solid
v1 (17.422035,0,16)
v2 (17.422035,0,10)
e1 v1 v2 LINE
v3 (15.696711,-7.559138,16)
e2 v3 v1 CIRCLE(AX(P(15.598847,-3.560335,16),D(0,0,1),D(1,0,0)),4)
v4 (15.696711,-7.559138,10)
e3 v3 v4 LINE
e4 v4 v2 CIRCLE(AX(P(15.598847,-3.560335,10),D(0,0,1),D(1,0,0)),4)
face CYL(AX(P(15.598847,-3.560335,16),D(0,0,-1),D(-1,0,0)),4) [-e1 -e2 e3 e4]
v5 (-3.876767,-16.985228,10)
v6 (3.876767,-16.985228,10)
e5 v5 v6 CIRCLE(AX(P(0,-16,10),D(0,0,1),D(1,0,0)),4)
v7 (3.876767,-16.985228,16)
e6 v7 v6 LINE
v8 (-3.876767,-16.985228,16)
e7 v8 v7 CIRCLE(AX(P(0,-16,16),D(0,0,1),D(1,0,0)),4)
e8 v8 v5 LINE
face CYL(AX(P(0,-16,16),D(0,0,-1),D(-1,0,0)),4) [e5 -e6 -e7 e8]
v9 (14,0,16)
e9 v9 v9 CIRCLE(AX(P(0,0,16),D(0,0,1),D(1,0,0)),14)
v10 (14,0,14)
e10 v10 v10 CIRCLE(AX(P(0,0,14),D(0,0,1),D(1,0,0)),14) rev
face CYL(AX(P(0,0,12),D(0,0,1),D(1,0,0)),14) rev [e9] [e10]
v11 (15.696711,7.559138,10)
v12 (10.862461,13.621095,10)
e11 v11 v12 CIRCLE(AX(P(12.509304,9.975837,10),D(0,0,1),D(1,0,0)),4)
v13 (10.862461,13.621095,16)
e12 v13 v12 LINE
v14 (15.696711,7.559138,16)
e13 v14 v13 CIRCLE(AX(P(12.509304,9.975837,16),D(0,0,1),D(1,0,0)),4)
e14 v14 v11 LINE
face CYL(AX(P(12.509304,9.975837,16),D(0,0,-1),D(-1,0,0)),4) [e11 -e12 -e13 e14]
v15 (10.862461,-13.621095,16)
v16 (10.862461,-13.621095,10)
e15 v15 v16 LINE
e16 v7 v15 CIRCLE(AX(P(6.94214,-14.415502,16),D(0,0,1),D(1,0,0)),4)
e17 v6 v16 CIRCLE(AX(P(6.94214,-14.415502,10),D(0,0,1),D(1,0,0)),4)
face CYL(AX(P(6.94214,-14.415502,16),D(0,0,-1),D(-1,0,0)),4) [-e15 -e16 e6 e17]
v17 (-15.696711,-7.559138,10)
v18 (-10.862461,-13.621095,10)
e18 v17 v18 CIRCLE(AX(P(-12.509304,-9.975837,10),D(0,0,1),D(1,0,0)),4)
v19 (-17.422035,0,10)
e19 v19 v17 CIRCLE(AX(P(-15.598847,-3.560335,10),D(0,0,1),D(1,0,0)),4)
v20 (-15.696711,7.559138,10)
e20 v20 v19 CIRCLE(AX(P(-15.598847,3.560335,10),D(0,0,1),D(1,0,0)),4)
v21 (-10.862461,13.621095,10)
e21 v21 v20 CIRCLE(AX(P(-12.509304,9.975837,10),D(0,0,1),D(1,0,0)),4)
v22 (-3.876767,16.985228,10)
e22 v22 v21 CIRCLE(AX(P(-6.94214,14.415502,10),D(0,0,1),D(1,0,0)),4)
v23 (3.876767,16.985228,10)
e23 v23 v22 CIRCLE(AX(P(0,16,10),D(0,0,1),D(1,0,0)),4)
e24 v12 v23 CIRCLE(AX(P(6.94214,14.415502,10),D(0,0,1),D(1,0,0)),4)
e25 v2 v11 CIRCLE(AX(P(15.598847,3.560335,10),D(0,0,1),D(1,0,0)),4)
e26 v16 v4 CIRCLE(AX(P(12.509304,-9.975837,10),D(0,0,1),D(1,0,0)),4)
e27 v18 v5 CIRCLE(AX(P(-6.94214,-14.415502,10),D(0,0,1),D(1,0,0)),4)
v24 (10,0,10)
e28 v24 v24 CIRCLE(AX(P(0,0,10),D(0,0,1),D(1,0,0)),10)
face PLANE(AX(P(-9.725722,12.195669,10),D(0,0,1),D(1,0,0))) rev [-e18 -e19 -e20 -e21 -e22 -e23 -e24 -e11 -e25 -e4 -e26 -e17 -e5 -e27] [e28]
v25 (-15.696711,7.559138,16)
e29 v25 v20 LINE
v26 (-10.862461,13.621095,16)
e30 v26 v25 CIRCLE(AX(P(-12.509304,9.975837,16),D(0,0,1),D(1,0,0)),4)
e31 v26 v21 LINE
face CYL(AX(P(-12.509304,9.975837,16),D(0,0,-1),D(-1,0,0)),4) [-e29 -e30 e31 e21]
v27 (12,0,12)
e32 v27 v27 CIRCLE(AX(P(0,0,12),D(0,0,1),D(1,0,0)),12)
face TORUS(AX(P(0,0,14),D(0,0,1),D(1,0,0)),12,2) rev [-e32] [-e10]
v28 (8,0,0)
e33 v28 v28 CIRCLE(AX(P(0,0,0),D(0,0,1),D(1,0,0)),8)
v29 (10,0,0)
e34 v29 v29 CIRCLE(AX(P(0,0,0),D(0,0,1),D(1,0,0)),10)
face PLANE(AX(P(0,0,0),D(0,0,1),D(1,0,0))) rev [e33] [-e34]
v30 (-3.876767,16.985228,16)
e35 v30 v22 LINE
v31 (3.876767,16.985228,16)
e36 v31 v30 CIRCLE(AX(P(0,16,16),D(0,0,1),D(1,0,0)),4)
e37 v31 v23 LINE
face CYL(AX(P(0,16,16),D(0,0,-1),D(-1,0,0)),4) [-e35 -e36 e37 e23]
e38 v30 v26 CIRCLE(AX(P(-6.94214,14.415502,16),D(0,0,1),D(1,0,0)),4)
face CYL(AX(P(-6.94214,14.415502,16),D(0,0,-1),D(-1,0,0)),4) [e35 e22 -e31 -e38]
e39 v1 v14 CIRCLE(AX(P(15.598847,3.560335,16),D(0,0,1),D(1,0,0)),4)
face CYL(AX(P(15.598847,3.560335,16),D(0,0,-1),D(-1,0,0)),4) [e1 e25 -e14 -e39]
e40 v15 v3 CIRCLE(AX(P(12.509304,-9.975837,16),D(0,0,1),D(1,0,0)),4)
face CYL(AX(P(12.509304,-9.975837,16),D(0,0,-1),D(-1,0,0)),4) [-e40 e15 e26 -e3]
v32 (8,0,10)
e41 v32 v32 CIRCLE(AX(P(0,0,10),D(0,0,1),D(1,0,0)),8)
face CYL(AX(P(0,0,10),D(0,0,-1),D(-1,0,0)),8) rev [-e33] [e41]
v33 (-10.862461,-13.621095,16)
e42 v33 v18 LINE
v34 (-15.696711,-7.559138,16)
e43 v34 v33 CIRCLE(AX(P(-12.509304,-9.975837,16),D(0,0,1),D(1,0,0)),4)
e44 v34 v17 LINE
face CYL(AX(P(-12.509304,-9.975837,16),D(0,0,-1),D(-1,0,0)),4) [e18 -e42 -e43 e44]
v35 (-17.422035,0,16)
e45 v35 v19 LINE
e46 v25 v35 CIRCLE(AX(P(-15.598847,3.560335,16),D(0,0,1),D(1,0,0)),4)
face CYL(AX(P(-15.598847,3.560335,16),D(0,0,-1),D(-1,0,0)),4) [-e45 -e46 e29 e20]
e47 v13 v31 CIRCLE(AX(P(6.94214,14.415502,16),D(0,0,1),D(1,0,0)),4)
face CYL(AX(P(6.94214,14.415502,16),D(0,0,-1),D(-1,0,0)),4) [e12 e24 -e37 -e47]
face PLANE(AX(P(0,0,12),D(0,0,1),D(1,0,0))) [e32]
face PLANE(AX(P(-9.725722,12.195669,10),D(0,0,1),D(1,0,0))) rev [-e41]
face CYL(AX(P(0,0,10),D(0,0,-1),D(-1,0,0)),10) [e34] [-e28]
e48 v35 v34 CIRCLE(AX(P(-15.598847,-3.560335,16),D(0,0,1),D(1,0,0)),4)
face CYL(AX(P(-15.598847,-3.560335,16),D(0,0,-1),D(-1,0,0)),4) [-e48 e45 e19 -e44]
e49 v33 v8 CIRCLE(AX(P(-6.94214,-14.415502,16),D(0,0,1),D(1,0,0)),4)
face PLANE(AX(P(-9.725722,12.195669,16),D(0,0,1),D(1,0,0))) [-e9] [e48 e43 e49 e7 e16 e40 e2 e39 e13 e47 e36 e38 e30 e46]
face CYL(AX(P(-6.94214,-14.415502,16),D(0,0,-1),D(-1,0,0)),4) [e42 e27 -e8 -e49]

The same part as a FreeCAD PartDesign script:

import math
import FreeCAD as App
import Part
import Sketcher

V = App.Vector
Q = App.Units.Quantity


def edges_at(feature, points):
    """Names of the edges that pass closest to the given points."""
    edges = feature.Shape.Edges
    near = lambda p: min(range(len(edges)), key=lambda i: edges[i].distToShape(Part.Vertex(*p))[0])
    return sorted({f"Edge{near(p) + 1}" for p in points})

doc = App.newDocument("Part")
params = doc.addObject("Spreadsheet::Sheet", "Params")
for row, (alias, value) in enumerate([
    ("sketch1_diameter", "20 mm"),
    ("sketch1_diameter2", "16 mm"),
    ("pad1_length", "10 mm"),
    ("sketch2_radius", "4 mm"),
    ("pad2_length", "6 mm"),
    ("sketch3_diameter", "28 mm"),
    ("pocket1_length", "4 mm"),
    ("fillet_radius", "2 mm"),
], start=1):
    params.set(f"A{row}", alias)
    params.set(f"B{row}", "=" + value)
    params.setAlias(f"B{row}", alias)

body = doc.addObject("PartDesign::Body", "Body")

sketch1 = doc.addObject("Sketcher::SketchObject", "Sketch")
body.addObject(sketch1)
sketch1.AttachmentSupport = (doc.XY_Plane, [""])
sketch1.MapMode = "FlatFace"
sketch1.addGeometry([
    Part.Circle(V(0, 0, 0), V(0, 0, 1), 10),
    Part.Circle(V(0, 0, 0), V(0, 0, 1), 8),
], False)
sketch1.addConstraint([
    Sketcher.Constraint("Coincident", 0, 3, -1, 1),
    Sketcher.Constraint("Coincident", 1, 3, -1, 1),
    Sketcher.Constraint("Diameter", 0, Q("20 mm")),
    Sketcher.Constraint("Diameter", 1, Q("16 mm")),
])
sketch1.setExpression("Constraints[2]", "Params.sketch1_diameter")
sketch1.setExpression("Constraints[3]", "Params.sketch1_diameter2")
pad1 = doc.addObject("PartDesign::Pad", "Pad")
body.addObject(pad1)
pad1.Profile = sketch1
pad1.setExpression("Length", "Params.pad1_length")

sketch2 = doc.addObject("Sketcher::SketchObject", "Sketch001")
body.addObject(sketch2)
sketch2.AttachmentSupport = (doc.XY_Plane, [""])
sketch2.MapMode = "FlatFace"
sketch2.AttachmentOffset = App.Placement(V(0, 0, 10), App.Rotation())
sketch2.addGeometry([
    Part.ArcOfCircle(Part.Circle(V(0, 16, 0), V(0, 0, 1), 4), math.radians(14.259086), math.radians(165.740914)),
    Part.ArcOfCircle(Part.Circle(V(-6.94214, 14.415502, 0), V(0, 0, 1), 4), math.radians(39.973372), math.radians(191.4552)),
    Part.ArcOfCircle(Part.Circle(V(-12.509304, 9.975837, 0), V(0, 0, 1), 4), math.radians(65.687658), math.radians(217.169485)),
    Part.ArcOfCircle(Part.Circle(V(-15.598847, 3.560335, 0), V(0, 0, 1), 4), math.radians(91.401943), math.radians(242.883771)),
    Part.ArcOfCircle(Part.Circle(V(-15.598847, -3.560335, 0), V(0, 0, 1), 4), math.radians(117.116229), math.radians(268.598057)),
    Part.ArcOfCircle(Part.Circle(V(-12.509304, -9.975837, 0), V(0, 0, 1), 4), math.radians(142.830515), math.radians(294.312342)),
    Part.ArcOfCircle(Part.Circle(V(-6.94214, -14.415502, 0), V(0, 0, 1), 4), math.radians(168.5448), math.radians(320.026628)),
    Part.ArcOfCircle(Part.Circle(V(0, -16, 0), V(0, 0, 1), 4), math.radians(-165.740914), math.radians(-14.259086)),
    Part.ArcOfCircle(Part.Circle(V(6.94214, -14.415502, 0), V(0, 0, 1), 4), math.radians(-140.026628), math.radians(11.4552)),
    Part.ArcOfCircle(Part.Circle(V(12.509304, -9.975837, 0), V(0, 0, 1), 4), math.radians(-114.312342), math.radians(37.169485)),
    Part.ArcOfCircle(Part.Circle(V(15.598847, -3.560335, 0), V(0, 0, 1), 4), math.radians(-88.598057), math.radians(62.883771)),
    Part.ArcOfCircle(Part.Circle(V(15.598847, 3.560335, 0), V(0, 0, 1), 4), math.radians(-62.883771), math.radians(88.598057)),
    Part.ArcOfCircle(Part.Circle(V(12.509304, 9.975837, 0), V(0, 0, 1), 4), math.radians(-37.169485), math.radians(114.312342)),
    Part.ArcOfCircle(Part.Circle(V(6.94214, 14.415502, 0), V(0, 0, 1), 4), math.radians(-11.4552), math.radians(140.026628)),
], False)
sketch2.addConstraint([
    Sketcher.Constraint("Coincident", 0, 2, 1, 1),
    Sketcher.Constraint("Coincident", 1, 2, 2, 1),
    Sketcher.Constraint("Coincident", 2, 2, 3, 1),
    Sketcher.Constraint("Coincident", 3, 2, 4, 1),
    Sketcher.Constraint("Coincident", 4, 2, 5, 1),
    Sketcher.Constraint("Coincident", 5, 2, 6, 1),
    Sketcher.Constraint("Coincident", 6, 2, 7, 1),
    Sketcher.Constraint("Coincident", 7, 2, 8, 1),
    Sketcher.Constraint("Coincident", 8, 2, 9, 1),
    Sketcher.Constraint("Coincident", 9, 2, 10, 1),
    Sketcher.Constraint("Coincident", 10, 2, 11, 1),
    Sketcher.Constraint("Coincident", 11, 2, 12, 1),
    Sketcher.Constraint("Coincident", 12, 2, 13, 1),
    Sketcher.Constraint("Coincident", 13, 2, 0, 1),
    Sketcher.Constraint("Equal", 0, 1),
    Sketcher.Constraint("Equal", 1, 2),
    Sketcher.Constraint("Equal", 2, 3),
    Sketcher.Constraint("Equal", 3, 4),
    Sketcher.Constraint("Equal", 4, 5),
    Sketcher.Constraint("Equal", 5, 6),
    Sketcher.Constraint("Equal", 6, 7),
    Sketcher.Constraint("Equal", 7, 8),
    Sketcher.Constraint("Equal", 8, 9),
    Sketcher.Constraint("Equal", 9, 10),
    Sketcher.Constraint("Equal", 10, 11),
    Sketcher.Constraint("Equal", 11, 12),
    Sketcher.Constraint("Equal", 12, 13),
    Sketcher.Constraint("Symmetric", 0, 3, 7, 3, -1, 1),
    Sketcher.Constraint("Symmetric", 1, 3, 8, 3, -1, 1),
    Sketcher.Constraint("Symmetric", 2, 3, 9, 3, -1, 1),
    Sketcher.Constraint("Symmetric", 3, 3, 10, 3, -1, 1),
    Sketcher.Constraint("Symmetric", 4, 3, 11, 3, -1, 1),
    Sketcher.Constraint("Symmetric", 5, 3, 12, 3, -1, 1),
    Sketcher.Constraint("Symmetric", 6, 3, 13, 3, -1, 1),
    Sketcher.Constraint("Symmetric", 6, 3, 8, 3, -2),
    Sketcher.Constraint("Symmetric", 5, 3, 9, 3, -2),
    Sketcher.Constraint("Symmetric", 4, 3, 10, 3, -2),
    Sketcher.Constraint("PointOnObject", 0, 3, -2),
    Sketcher.Constraint("Radius", 0, Q("4 mm")),
    Sketcher.Constraint("DistanceY", -1, 1, 0, 3, Q("16 mm")),
    Sketcher.Constraint("DistanceY", -1, 1, 1, 3, Q("14.415502 mm")),
    Sketcher.Constraint("DistanceY", 3, 3, 2, 3, Q("6.415502 mm")),
    Sketcher.Constraint("DistanceY", 2, 2, 2, 3, Q("2.416699 mm")),
    Sketcher.Constraint("DistanceX", 1, 3, -1, 1, Q("6.94214 mm")),
    Sketcher.Constraint("DistanceX", 1, 2, -1, 1, Q("10.862461 mm")),
    Sketcher.Constraint("DistanceX", 2, 2, -1, 1, Q("15.696711 mm")),
])
sketch2.setExpression("Constraints[38]", "Params.sketch2_radius")
pad2 = doc.addObject("PartDesign::Pad", "Pad001")
body.addObject(pad2)
pad2.Profile = sketch2
pad2.setExpression("Length", "Params.pad2_length")

sketch3 = doc.addObject("Sketcher::SketchObject", "Sketch002")
body.addObject(sketch3)
sketch3.AttachmentSupport = (doc.XY_Plane, [""])
sketch3.MapMode = "FlatFace"
sketch3.AttachmentOffset = App.Placement(V(0, 0, 16), App.Rotation())
sketch3.addGeometry(Part.Circle(V(0, 0, 0), V(0, 0, 1), 14), False)
sketch3.addConstraint([
    Sketcher.Constraint("Coincident", 0, 3, -1, 1),
    Sketcher.Constraint("Diameter", 0, Q("28 mm")),
])
sketch3.setExpression("Constraints[1]", "Params.sketch3_diameter")
pocket1 = doc.addObject("PartDesign::Pocket", "Pocket")
body.addObject(pocket1)
pocket1.Profile = sketch3
pocket1.setExpression("Length", "Params.pocket1_length")
doc.recompute()

fillet = doc.addObject("PartDesign::Fillet", "Fillet")
body.addObject(fillet)
fillet.Base = (pocket1, edges_at(pocket1, [(-14, 0, 12)]))
fillet.setExpression("Radius", "Params.fillet_radius")

doc.recompute()
